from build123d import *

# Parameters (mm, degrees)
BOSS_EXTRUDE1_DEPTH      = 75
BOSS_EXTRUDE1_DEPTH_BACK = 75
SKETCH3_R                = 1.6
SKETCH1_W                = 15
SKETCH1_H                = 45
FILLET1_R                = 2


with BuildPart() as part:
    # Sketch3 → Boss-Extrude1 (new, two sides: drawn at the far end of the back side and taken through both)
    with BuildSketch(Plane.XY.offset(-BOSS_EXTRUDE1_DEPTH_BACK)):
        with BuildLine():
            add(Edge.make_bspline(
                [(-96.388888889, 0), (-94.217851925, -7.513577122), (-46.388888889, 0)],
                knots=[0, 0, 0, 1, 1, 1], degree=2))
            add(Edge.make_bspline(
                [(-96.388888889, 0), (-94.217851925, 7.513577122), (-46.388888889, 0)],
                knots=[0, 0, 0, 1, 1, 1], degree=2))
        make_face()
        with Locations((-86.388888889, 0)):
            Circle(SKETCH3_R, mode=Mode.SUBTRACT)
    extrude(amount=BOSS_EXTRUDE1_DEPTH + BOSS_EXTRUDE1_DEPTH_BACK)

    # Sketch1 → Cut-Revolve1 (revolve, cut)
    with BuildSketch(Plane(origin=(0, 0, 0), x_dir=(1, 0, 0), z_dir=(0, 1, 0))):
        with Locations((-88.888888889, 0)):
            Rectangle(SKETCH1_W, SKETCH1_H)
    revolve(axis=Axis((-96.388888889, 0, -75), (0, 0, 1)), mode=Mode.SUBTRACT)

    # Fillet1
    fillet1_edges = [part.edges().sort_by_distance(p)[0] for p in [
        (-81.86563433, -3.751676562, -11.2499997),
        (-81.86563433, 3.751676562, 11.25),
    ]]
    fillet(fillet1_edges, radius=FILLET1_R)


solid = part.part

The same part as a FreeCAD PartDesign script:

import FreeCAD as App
import Part
import Sketcher

V = App.Vector
Q = App.Units.Quantity


def edges_at(feature, points):
    """Names of the edges that pass closest to the given points."""
    edges = feature.Shape.Edges
    near = lambda p: min(range(len(edges)), key=lambda i: edges[i].distToShape(Part.Vertex(*p))[0])
    return sorted({f"Edge{near(p) + 1}" for p in points})


def add_polygon(sketch, points):
    """Adds a closed chain of lines whose ends are joined by coincident constraints."""
    first, n = sketch.GeometryCount, len(points)
    for a, b in zip(points, points[1:] + points[:1]):
        sketch.addGeometry(Part.LineSegment(App.Vector(*a, 0), App.Vector(*b, 0)), False)
    for i in range(n):
        sketch.addConstraint(Sketcher.Constraint("Coincident", first + i, 2, first + (i + 1) % n, 1))

doc = App.newDocument("Part")
body = doc.addObject("PartDesign::Body", "Body")

sketch1 = body.newObject("Sketcher::SketchObject", "Sketch")
sketch1.AttachmentSupport = (doc.getObject("XY_Plane"), [""])
sketch1.MapMode = "FlatFace"
sketch1.addGeometry(Part.BSplineCurve([V(-96.388889, 0, 0), V(-94.217852, -7.513577, 0), V(-46.388889, 0, 0)], [3, 3], [0, 1], False, 2, [1, 1, 1], False), False)
sketch1.addGeometry(Part.BSplineCurve([V(-96.388889, 0, 0), V(-94.217852, 7.513577, 0), V(-46.388889, 0, 0)], [3, 3], [0, 1], False, 2, [1, 1, 1], False), False)
sketch1.addGeometry(Part.Circle(V(-86.388889, 0, 0), V(0, 0, 1), 1.6), False)
sketch1.addConstraint(Sketcher.Constraint("Block", 0))
sketch1.addConstraint(Sketcher.Constraint("Block", 1))
sketch1.addConstraint(Sketcher.Constraint("PointOnObject", 2, 3, -1))
sketch1.addConstraint(Sketcher.Constraint("Diameter", 2, Q("3.2 mm")))
sketch1.addConstraint(Sketcher.Constraint("DistanceX", 2, 3, -1, 1, Q("86.388889 mm")))
pad1 = body.newObject("PartDesign::Pad", "Pad")
pad1.Profile = sketch1
pad1.Type = "TwoLengths"
pad1.Length = 75
pad1.Length2 = 75

sketch2 = body.newObject("Sketcher::SketchObject", "Sketch001")
sketch2.AttachmentSupport = (doc.getObject("XZ_Plane"), [""])
sketch2.MapMode = "FlatFace"
add_polygon(sketch2, [(-96, -22), (-96, 22), (-81, 22), (-81, -22)])
sketch2.addGeometry(Part.LineSegment(V(-96, -22, 0), V(-96, 22, 0)), True)
sketch2.addConstraint(Sketcher.Constraint("Vertical", 0))
sketch2.addConstraint(Sketcher.Constraint("Horizontal", 1))
sketch2.addConstraint(Sketcher.Constraint("Vertical", 2))
sketch2.addConstraint(Sketcher.Constraint("Horizontal", 3))
sketch2.addConstraint(Sketcher.Constraint("Vertical", 4))
sketch2.addConstraint(Sketcher.Constraint("Coincident", 4, 1, 3, 2))
sketch2.addConstraint(Sketcher.Constraint("Horizontal", 1, 2, 4, 2))
sketch2.addConstraint(Sketcher.Constraint("DistanceX", 1, 1, 1, 2, Q("15 mm")))
sketch2.addConstraint(Sketcher.Constraint("DistanceY", 0, 1, 0, 2, Q("45 mm")))
sketch2.addConstraint(Sketcher.Constraint("DistanceY", -1, 1, 0, 2, Q("22.5 mm")))
sketch2.addConstraint(Sketcher.Constraint("DistanceX", 0, 2, -1, 1, Q("96.388889 mm")))
groove = body.newObject("PartDesign::Groove", "Groove")
groove.Profile = sketch2
groove.ReferenceAxis = (sketch2, ["Axis0"])
groove.Angle = 360
doc.recompute()

fillet = body.newObject("PartDesign::Fillet", "Fillet")
fillet.Base = (groove, edges_at(groove, [(-81.866, -3.752, 0), (-81.866, 3.752, 0)]))
fillet.Radius = 2

doc.recompute()
